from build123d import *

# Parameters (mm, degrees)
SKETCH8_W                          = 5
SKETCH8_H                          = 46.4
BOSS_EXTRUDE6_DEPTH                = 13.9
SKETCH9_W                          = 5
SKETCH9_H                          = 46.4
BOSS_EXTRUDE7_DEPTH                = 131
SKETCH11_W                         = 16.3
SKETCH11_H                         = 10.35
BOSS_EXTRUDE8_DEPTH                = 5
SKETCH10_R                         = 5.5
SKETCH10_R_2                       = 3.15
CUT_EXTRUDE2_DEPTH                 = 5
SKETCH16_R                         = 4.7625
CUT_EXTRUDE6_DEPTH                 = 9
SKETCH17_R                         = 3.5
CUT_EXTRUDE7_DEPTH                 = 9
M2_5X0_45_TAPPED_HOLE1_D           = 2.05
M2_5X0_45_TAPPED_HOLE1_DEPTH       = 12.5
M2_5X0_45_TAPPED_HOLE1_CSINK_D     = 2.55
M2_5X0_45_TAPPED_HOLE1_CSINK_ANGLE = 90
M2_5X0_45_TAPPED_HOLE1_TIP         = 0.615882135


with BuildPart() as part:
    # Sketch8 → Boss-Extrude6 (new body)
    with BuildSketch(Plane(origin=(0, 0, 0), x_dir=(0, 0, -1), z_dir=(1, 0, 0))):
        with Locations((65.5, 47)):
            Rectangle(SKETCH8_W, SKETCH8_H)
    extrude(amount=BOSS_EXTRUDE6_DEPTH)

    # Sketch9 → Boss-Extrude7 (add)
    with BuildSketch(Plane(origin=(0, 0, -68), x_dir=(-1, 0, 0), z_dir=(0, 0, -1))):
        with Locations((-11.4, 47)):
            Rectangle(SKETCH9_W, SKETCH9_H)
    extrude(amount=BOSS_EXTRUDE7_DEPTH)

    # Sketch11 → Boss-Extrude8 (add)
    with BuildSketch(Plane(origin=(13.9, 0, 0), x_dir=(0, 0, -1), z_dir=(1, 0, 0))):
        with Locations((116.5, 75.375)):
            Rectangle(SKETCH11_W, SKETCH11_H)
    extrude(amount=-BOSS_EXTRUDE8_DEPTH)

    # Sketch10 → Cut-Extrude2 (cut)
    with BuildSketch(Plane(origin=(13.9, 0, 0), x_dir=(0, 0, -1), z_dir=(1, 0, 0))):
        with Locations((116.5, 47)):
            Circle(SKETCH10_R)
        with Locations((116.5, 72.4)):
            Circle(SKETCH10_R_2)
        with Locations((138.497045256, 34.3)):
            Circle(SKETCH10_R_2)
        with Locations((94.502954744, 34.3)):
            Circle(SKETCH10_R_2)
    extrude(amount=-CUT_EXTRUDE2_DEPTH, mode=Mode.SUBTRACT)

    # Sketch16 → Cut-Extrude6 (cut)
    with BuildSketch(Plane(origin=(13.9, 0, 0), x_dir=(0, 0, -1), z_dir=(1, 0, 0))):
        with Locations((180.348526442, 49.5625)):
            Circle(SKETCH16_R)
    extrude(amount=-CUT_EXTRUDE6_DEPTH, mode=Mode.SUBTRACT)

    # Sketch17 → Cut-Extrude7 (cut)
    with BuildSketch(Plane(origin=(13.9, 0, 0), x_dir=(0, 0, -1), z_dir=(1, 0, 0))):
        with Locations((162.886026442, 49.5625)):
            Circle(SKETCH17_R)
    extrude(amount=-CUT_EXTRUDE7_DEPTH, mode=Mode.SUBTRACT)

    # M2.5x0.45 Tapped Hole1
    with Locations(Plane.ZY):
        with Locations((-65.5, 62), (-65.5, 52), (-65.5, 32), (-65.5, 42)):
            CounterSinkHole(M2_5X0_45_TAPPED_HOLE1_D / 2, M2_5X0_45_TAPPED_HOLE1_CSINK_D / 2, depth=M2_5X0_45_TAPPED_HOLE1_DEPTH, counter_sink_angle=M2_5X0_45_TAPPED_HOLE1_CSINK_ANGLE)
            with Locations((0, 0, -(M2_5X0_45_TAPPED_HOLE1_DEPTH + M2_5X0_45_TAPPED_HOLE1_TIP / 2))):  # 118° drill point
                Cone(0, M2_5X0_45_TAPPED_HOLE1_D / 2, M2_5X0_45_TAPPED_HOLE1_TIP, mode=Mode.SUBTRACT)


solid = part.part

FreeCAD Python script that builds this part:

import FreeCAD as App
import Part
import Sketcher
Q = App.Units.Quantity


def add_polygon(sketch, points):
    """Adds a closed chain of lines whose ends are joined by coincident constraints."""
    first, n = sketch.GeometryCount, len(points)
    for a, b in zip(points, points[1:] + points[:1]):
        sketch.addGeometry(Part.LineSegment(App.Vector(*a, 0), App.Vector(*b, 0)), False)
    for i in range(n):
        sketch.addConstraint(Sketcher.Constraint("Coincident", first + i, 2, first + (i + 1) % n, 1))

doc = App.newDocument("Part")
body = doc.addObject("PartDesign::Body", "Body")

sketch1 = body.newObject("Sketcher::SketchObject", "Sketch")
sketch1.AttachmentSupport = (doc.getObject("YZ_Plane"), [""])
sketch1.MapMode = "FlatFace"
add_polygon(sketch1, [(70, -63), (24, -63), (24, -68), (70, -68)])
sketch1.addConstraint(Sketcher.Constraint("Horizontal", 0))
sketch1.addConstraint(Sketcher.Constraint("Vertical", 1))
sketch1.addConstraint(Sketcher.Constraint("Horizontal", 2))
sketch1.addConstraint(Sketcher.Constraint("Vertical", 3))
sketch1.addConstraint(Sketcher.Constraint("DistanceY", 1, 2, 1, 1, Q("5 mm")))
sketch1.addConstraint(Sketcher.Constraint("DistanceX", 0, 2, 0, 1, Q("46.4 mm")))
sketch1.addConstraint(Sketcher.Constraint("DistanceY", 0, 2, -1, 1, Q("63 mm")))
sketch1.addConstraint(Sketcher.Constraint("DistanceX", -1, 1, 0, 2, Q("23.8 mm")))
pad1 = body.newObject("PartDesign::Pad", "Pad")
pad1.Profile = sketch1
pad1.Length = 13.9

sketch2 = body.newObject("Sketcher::SketchObject", "Sketch001")
sketch2.AttachmentSupport = (doc.getObject("XY_Plane"), [""])
sketch2.MapMode = "FlatFace"
sketch2.AttachmentOffset = App.Placement(App.Vector(0, 0, -68), App.Rotation())
add_polygon(sketch2, [(14, 70), (14, 24), (9, 24), (9, 70)])
sketch2.addConstraint(Sketcher.Constraint("Vertical", 0))
sketch2.addConstraint(Sketcher.Constraint("Horizontal", 1))
sketch2.addConstraint(Sketcher.Constraint("Vertical", 2))
sketch2.addConstraint(Sketcher.Constraint("Horizontal", 3))
sketch2.addConstraint(Sketcher.Constraint("DistanceX", 1, 2, 1, 1, Q("5 mm")))
sketch2.addConstraint(Sketcher.Constraint("DistanceY", 0, 2, 0, 1, Q("46.4 mm")))
sketch2.addConstraint(Sketcher.Constraint("DistanceX", -1, 1, 0, 2, Q("13.9 mm")))
sketch2.addConstraint(Sketcher.Constraint("DistanceY", -1, 1, 0, 2, Q("23.8 mm")))
pad2 = body.newObject("PartDesign::Pad", "Pad001")
pad2.Profile = sketch2
pad2.Length = 131
pad2.Reversed = True

sketch3 = body.newObject("Sketcher::SketchObject", "Sketch002")
sketch3.AttachmentSupport = (doc.getObject("YZ_Plane"), [""])
sketch3.MapMode = "FlatFace"
sketch3.AttachmentOffset = App.Placement(App.Vector(0, 0, 13.9), App.Rotation())
add_polygon(sketch3, [(81, -108), (70, -108), (70, -125), (81, -125)])
sketch3.addConstraint(Sketcher.Constraint("Horizontal", 0))
sketch3.addConstraint(Sketcher.Constraint("Vertical", 1))
sketch3.addConstraint(Sketcher.Constraint("Horizontal", 2))
sketch3.addConstraint(Sketcher.Constraint("Vertical", 3))
sketch3.addConstraint(Sketcher.Constraint("DistanceY", 1, 2, 1, 1, Q("16.3 mm")))
sketch3.addConstraint(Sketcher.Constraint("DistanceX", 0, 2, 0, 1, Q("10.35 mm")))
sketch3.addConstraint(Sketcher.Constraint("DistanceX", -1, 1, 0, 2, Q("70.2 mm")))
sketch3.addConstraint(Sketcher.Constraint("DistanceY", 0, 2, -1, 1, Q("108.35 mm")))
pad3 = body.newObject("PartDesign::Pad", "Pad002")
pad3.Profile = sketch3
pad3.Length = 5
pad3.Reversed = True

sketch4 = body.newObject("Sketcher::SketchObject", "Sketch003")
sketch4.AttachmentSupport = (doc.getObject("YZ_Plane"), [""])
sketch4.MapMode = "FlatFace"
sketch4.AttachmentOffset = App.Placement(App.Vector(0, 0, 13.9), App.Rotation())
sketch4.addGeometry(Part.Circle(App.Vector(47, -116.5, 0), App.Vector(0, 0, 1), 5.5), False)
sketch4.addGeometry(Part.Circle(App.Vector(72.4, -116.5, 0), App.Vector(0, 0, 1), 3.1), False)
sketch4.addGeometry(Part.Circle(App.Vector(34.3, -138.5, 0), App.Vector(0, 0, 1), 3.1), False)
sketch4.addGeometry(Part.Circle(App.Vector(34.3, -94.5, 0), App.Vector(0, 0, 1), 3.1), False)
sketch4.addConstraint(Sketcher.Constraint("Equal", 1, 2))
sketch4.addConstraint(Sketcher.Constraint("Equal", 2, 3))
sketch4.addConstraint(Sketcher.Constraint("Horizontal", 0, 3, 1, 3))
sketch4.addConstraint(Sketcher.Constraint("Vertical", 2, 3, 3, 3))
sketch4.addConstraint(Sketcher.Constraint("Diameter", 0, Q("11 mm")))
sketch4.addConstraint(Sketcher.Constraint("Diameter", 1, Q("6.3 mm")))
sketch4.addConstraint(Sketcher.Constraint("DistanceX", -1, 1, 0, 3, Q("47 mm")))
sketch4.addConstraint(Sketcher.Constraint("DistanceY", 0, 3, -1, 1, Q("116.5 mm")))
sketch4.addConstraint(Sketcher.Constraint("DistanceX", -1, 1, 1, 3, Q("72.4 mm")))
sketch4.addConstraint(Sketcher.Constraint("DistanceX", -1, 1, 2, 3, Q("34.3 mm")))
sketch4.addConstraint(Sketcher.Constraint("DistanceY", 2, 3, 3, 3, Q("43.994091 mm")))
sketch4.addConstraint(Sketcher.Constraint("DistanceY", 2, 3, -1, 1, Q("138.497045 mm")))
pocket1 = body.newObject("PartDesign::Pocket", "Pocket")
pocket1.Profile = sketch4
pocket1.Length = 5

sketch5 = body.newObject("Sketcher::SketchObject", "Sketch004")
sketch5.AttachmentSupport = (doc.getObject("YZ_Plane"), [""])
sketch5.MapMode = "FlatFace"
sketch5.AttachmentOffset = App.Placement(App.Vector(0, 0, 13.9), App.Rotation())
sketch5.addGeometry(Part.Circle(App.Vector(49.6, -180.3, 0), App.Vector(0, 0, 1), 4.8), False)
sketch5.addConstraint(Sketcher.Constraint("Diameter", 0, Q("9.525 mm")))
sketch5.addConstraint(Sketcher.Constraint("DistanceX", -1, 1, 0, 3, Q("49.5625 mm")))
sketch5.addConstraint(Sketcher.Constraint("DistanceY", 0, 3, -1, 1, Q("180.348526 mm")))
pocket2 = body.newObject("PartDesign::Pocket", "Pocket001")
pocket2.Profile = sketch5
pocket2.Length = 9

sketch6 = body.newObject("Sketcher::SketchObject", "Sketch005")
sketch6.AttachmentSupport = (doc.getObject("YZ_Plane"), [""])
sketch6.MapMode = "FlatFace"
sketch6.AttachmentOffset = App.Placement(App.Vector(0, 0, 13.9), App.Rotation())
sketch6.addGeometry(Part.Circle(App.Vector(49.6, -162.9, 0), App.Vector(0, 0, 1), 3.5), False)
sketch6.addConstraint(Sketcher.Constraint("Diameter", 0, Q("7 mm")))
sketch6.addConstraint(Sketcher.Constraint("DistanceX", -1, 1, 0, 3, Q("49.5625 mm")))
sketch6.addConstraint(Sketcher.Constraint("DistanceY", 0, 3, -1, 1, Q("162.886026 mm")))
pocket3 = body.newObject("PartDesign::Pocket", "Pocket002")
pocket3.Profile = sketch6
pocket3.Length = 9

sketch7 = body.newObject("Sketcher::SketchObject", "Sketch006")
sketch7.AttachmentSupport = (doc.getObject("YZ_Plane"), [""])
sketch7.MapMode = "FlatFace"
sketch7.addGeometry(Part.Circle(App.Vector(62, -65.5, 0), App.Vector(0, 0, 1), 1), False)
sketch7.addGeometry(Part.Circle(App.Vector(52, -65.5, 0), App.Vector(0, 0, 1), 1), False)
sketch7.addGeometry(Part.Circle(App.Vector(32, -65.5, 0), App.Vector(0, 0, 1), 1), False)
sketch7.addGeometry(Part.Circle(App.Vector(42, -65.5, 0), App.Vector(0, 0, 1), 1), False)
sketch7.addConstraint(Sketcher.Constraint("Equal", 0, 1))
sketch7.addConstraint(Sketcher.Constraint("Equal", 1, 2))
sketch7.addConstraint(Sketcher.Constraint("Equal", 2, 3))
sketch7.addConstraint(Sketcher.Constraint("Horizontal", 0, 3, 1, 3))
sketch7.addConstraint(Sketcher.Constraint("Horizontal", 1, 3, 2, 3))
sketch7.addConstraint(Sketcher.Constraint("Horizontal", 2, 3, 3, 3))
sketch7.addConstraint(Sketcher.Constraint("Diameter", 0, Q("2.05 mm")))
sketch7.addConstraint(Sketcher.Constraint("DistanceX", -1, 1, 0, 3, Q("62 mm")))
sketch7.addConstraint(Sketcher.Constraint("DistanceX", -1, 1, 1, 3, Q("52 mm")))
sketch7.addConstraint(Sketcher.Constraint("DistanceX", -1, 1, 2, 3, Q("32 mm")))
sketch7.addConstraint(Sketcher.Constraint("DistanceX", -1, 1, 3, 3, Q("42 mm")))
sketch7.addConstraint(Sketcher.Constraint("DistanceY", 0, 3, -1, 1, Q("65.5 mm")))
doc.recompute()
hole = body.newObject("PartDesign::Hole", "Hole")
hole.Profile = sketch7
hole.ThreadType = "None"
hole.Diameter = 2.05
hole.DepthType = "Dimension"
hole.Depth = 12.5
hole.DrillPoint = "Angled"
hole.DrillPointAngle = 118
hole.HoleCutType = "Countersink"
hole.HoleCutDiameter = 2.55
hole.HoleCutCountersinkAngle = 90
hole.Reversed = True

doc.recompute()
